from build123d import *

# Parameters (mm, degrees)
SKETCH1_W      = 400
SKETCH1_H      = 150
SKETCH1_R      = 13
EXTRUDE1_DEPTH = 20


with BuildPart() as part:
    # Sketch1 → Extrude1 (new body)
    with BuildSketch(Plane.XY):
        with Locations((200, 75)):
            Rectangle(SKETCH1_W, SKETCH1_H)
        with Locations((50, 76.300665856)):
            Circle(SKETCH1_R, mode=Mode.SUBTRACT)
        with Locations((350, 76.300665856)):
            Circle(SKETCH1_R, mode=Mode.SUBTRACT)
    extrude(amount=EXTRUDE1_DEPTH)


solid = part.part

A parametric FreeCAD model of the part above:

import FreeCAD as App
import Part
import Sketcher
from FreeCAD import Vector
Q = App.Units.Quantity

doc = App.newDocument("Part")
body = doc.addObject("PartDesign::Body", "Body")

# Sketch on XY plane
sketch1 = body.newObject("Sketcher::SketchObject", "Sketch")
sketch1.AttachmentSupport = (doc.getObject("XY_Plane"), [""])
sketch1.MapMode = "FlatFace"
sketch1.addGeometry([
    Part.LineSegment(Vector(0, 150, 0), Vector(0, 0, 0)),  # 0
    Part.LineSegment(Vector(0, 0, 0), Vector(400, 0, 0)),  # 1
    Part.LineSegment(Vector(400, 0, 0), Vector(400, 150, 0)),  # 2
    Part.LineSegment(Vector(400, 150, 0), Vector(0, 150, 0)),  # 3
    Part.Circle(Vector(50, 76, 0), Vector(0, 0, 1), 13),  # 4
    Part.Circle(Vector(350, 76, 0), Vector(0, 0, 1), 13),  # 5
], False)
sketch1.addConstraint([
    Sketcher.Constraint("Coincident", 0, 2, 1, 1),
    Sketcher.Constraint("Coincident", 1, 2, 2, 1),
    Sketcher.Constraint("Coincident", 2, 2, 3, 1),
    Sketcher.Constraint("Coincident", 3, 2, 0, 1),
    Sketcher.Constraint("Vertical", 0),
    Sketcher.Constraint("Horizontal", 1),
    Sketcher.Constraint("Vertical", 2),
    Sketcher.Constraint("Horizontal", 3),
    Sketcher.Constraint("Coincident", 0, 2, -1, 1),
    Sketcher.Constraint("Equal", 4, 5),
    Sketcher.Constraint("Horizontal", 4, 3, 5, 3),
    Sketcher.Constraint("Diameter", 4, Q("26 mm")),
    Sketcher.Constraint("DistanceX", 1, 1, 1, 2, Q("400 mm")),
    Sketcher.Constraint("DistanceY", 0, 2, 0, 1, Q("150 mm")),
    Sketcher.Constraint("DistanceX", -1, 1, 4, 3, Q("50 mm")),
    Sketcher.Constraint("DistanceX", -1, 1, 5, 3, Q("350 mm")),
    Sketcher.Constraint("DistanceY", -1, 1, 4, 3, Q("76.300666 mm")),
])
pad1 = body.newObject("PartDesign::Pad", "Pad")
pad1.Profile = sketch1
pad1.Length = 20

doc.recompute()
